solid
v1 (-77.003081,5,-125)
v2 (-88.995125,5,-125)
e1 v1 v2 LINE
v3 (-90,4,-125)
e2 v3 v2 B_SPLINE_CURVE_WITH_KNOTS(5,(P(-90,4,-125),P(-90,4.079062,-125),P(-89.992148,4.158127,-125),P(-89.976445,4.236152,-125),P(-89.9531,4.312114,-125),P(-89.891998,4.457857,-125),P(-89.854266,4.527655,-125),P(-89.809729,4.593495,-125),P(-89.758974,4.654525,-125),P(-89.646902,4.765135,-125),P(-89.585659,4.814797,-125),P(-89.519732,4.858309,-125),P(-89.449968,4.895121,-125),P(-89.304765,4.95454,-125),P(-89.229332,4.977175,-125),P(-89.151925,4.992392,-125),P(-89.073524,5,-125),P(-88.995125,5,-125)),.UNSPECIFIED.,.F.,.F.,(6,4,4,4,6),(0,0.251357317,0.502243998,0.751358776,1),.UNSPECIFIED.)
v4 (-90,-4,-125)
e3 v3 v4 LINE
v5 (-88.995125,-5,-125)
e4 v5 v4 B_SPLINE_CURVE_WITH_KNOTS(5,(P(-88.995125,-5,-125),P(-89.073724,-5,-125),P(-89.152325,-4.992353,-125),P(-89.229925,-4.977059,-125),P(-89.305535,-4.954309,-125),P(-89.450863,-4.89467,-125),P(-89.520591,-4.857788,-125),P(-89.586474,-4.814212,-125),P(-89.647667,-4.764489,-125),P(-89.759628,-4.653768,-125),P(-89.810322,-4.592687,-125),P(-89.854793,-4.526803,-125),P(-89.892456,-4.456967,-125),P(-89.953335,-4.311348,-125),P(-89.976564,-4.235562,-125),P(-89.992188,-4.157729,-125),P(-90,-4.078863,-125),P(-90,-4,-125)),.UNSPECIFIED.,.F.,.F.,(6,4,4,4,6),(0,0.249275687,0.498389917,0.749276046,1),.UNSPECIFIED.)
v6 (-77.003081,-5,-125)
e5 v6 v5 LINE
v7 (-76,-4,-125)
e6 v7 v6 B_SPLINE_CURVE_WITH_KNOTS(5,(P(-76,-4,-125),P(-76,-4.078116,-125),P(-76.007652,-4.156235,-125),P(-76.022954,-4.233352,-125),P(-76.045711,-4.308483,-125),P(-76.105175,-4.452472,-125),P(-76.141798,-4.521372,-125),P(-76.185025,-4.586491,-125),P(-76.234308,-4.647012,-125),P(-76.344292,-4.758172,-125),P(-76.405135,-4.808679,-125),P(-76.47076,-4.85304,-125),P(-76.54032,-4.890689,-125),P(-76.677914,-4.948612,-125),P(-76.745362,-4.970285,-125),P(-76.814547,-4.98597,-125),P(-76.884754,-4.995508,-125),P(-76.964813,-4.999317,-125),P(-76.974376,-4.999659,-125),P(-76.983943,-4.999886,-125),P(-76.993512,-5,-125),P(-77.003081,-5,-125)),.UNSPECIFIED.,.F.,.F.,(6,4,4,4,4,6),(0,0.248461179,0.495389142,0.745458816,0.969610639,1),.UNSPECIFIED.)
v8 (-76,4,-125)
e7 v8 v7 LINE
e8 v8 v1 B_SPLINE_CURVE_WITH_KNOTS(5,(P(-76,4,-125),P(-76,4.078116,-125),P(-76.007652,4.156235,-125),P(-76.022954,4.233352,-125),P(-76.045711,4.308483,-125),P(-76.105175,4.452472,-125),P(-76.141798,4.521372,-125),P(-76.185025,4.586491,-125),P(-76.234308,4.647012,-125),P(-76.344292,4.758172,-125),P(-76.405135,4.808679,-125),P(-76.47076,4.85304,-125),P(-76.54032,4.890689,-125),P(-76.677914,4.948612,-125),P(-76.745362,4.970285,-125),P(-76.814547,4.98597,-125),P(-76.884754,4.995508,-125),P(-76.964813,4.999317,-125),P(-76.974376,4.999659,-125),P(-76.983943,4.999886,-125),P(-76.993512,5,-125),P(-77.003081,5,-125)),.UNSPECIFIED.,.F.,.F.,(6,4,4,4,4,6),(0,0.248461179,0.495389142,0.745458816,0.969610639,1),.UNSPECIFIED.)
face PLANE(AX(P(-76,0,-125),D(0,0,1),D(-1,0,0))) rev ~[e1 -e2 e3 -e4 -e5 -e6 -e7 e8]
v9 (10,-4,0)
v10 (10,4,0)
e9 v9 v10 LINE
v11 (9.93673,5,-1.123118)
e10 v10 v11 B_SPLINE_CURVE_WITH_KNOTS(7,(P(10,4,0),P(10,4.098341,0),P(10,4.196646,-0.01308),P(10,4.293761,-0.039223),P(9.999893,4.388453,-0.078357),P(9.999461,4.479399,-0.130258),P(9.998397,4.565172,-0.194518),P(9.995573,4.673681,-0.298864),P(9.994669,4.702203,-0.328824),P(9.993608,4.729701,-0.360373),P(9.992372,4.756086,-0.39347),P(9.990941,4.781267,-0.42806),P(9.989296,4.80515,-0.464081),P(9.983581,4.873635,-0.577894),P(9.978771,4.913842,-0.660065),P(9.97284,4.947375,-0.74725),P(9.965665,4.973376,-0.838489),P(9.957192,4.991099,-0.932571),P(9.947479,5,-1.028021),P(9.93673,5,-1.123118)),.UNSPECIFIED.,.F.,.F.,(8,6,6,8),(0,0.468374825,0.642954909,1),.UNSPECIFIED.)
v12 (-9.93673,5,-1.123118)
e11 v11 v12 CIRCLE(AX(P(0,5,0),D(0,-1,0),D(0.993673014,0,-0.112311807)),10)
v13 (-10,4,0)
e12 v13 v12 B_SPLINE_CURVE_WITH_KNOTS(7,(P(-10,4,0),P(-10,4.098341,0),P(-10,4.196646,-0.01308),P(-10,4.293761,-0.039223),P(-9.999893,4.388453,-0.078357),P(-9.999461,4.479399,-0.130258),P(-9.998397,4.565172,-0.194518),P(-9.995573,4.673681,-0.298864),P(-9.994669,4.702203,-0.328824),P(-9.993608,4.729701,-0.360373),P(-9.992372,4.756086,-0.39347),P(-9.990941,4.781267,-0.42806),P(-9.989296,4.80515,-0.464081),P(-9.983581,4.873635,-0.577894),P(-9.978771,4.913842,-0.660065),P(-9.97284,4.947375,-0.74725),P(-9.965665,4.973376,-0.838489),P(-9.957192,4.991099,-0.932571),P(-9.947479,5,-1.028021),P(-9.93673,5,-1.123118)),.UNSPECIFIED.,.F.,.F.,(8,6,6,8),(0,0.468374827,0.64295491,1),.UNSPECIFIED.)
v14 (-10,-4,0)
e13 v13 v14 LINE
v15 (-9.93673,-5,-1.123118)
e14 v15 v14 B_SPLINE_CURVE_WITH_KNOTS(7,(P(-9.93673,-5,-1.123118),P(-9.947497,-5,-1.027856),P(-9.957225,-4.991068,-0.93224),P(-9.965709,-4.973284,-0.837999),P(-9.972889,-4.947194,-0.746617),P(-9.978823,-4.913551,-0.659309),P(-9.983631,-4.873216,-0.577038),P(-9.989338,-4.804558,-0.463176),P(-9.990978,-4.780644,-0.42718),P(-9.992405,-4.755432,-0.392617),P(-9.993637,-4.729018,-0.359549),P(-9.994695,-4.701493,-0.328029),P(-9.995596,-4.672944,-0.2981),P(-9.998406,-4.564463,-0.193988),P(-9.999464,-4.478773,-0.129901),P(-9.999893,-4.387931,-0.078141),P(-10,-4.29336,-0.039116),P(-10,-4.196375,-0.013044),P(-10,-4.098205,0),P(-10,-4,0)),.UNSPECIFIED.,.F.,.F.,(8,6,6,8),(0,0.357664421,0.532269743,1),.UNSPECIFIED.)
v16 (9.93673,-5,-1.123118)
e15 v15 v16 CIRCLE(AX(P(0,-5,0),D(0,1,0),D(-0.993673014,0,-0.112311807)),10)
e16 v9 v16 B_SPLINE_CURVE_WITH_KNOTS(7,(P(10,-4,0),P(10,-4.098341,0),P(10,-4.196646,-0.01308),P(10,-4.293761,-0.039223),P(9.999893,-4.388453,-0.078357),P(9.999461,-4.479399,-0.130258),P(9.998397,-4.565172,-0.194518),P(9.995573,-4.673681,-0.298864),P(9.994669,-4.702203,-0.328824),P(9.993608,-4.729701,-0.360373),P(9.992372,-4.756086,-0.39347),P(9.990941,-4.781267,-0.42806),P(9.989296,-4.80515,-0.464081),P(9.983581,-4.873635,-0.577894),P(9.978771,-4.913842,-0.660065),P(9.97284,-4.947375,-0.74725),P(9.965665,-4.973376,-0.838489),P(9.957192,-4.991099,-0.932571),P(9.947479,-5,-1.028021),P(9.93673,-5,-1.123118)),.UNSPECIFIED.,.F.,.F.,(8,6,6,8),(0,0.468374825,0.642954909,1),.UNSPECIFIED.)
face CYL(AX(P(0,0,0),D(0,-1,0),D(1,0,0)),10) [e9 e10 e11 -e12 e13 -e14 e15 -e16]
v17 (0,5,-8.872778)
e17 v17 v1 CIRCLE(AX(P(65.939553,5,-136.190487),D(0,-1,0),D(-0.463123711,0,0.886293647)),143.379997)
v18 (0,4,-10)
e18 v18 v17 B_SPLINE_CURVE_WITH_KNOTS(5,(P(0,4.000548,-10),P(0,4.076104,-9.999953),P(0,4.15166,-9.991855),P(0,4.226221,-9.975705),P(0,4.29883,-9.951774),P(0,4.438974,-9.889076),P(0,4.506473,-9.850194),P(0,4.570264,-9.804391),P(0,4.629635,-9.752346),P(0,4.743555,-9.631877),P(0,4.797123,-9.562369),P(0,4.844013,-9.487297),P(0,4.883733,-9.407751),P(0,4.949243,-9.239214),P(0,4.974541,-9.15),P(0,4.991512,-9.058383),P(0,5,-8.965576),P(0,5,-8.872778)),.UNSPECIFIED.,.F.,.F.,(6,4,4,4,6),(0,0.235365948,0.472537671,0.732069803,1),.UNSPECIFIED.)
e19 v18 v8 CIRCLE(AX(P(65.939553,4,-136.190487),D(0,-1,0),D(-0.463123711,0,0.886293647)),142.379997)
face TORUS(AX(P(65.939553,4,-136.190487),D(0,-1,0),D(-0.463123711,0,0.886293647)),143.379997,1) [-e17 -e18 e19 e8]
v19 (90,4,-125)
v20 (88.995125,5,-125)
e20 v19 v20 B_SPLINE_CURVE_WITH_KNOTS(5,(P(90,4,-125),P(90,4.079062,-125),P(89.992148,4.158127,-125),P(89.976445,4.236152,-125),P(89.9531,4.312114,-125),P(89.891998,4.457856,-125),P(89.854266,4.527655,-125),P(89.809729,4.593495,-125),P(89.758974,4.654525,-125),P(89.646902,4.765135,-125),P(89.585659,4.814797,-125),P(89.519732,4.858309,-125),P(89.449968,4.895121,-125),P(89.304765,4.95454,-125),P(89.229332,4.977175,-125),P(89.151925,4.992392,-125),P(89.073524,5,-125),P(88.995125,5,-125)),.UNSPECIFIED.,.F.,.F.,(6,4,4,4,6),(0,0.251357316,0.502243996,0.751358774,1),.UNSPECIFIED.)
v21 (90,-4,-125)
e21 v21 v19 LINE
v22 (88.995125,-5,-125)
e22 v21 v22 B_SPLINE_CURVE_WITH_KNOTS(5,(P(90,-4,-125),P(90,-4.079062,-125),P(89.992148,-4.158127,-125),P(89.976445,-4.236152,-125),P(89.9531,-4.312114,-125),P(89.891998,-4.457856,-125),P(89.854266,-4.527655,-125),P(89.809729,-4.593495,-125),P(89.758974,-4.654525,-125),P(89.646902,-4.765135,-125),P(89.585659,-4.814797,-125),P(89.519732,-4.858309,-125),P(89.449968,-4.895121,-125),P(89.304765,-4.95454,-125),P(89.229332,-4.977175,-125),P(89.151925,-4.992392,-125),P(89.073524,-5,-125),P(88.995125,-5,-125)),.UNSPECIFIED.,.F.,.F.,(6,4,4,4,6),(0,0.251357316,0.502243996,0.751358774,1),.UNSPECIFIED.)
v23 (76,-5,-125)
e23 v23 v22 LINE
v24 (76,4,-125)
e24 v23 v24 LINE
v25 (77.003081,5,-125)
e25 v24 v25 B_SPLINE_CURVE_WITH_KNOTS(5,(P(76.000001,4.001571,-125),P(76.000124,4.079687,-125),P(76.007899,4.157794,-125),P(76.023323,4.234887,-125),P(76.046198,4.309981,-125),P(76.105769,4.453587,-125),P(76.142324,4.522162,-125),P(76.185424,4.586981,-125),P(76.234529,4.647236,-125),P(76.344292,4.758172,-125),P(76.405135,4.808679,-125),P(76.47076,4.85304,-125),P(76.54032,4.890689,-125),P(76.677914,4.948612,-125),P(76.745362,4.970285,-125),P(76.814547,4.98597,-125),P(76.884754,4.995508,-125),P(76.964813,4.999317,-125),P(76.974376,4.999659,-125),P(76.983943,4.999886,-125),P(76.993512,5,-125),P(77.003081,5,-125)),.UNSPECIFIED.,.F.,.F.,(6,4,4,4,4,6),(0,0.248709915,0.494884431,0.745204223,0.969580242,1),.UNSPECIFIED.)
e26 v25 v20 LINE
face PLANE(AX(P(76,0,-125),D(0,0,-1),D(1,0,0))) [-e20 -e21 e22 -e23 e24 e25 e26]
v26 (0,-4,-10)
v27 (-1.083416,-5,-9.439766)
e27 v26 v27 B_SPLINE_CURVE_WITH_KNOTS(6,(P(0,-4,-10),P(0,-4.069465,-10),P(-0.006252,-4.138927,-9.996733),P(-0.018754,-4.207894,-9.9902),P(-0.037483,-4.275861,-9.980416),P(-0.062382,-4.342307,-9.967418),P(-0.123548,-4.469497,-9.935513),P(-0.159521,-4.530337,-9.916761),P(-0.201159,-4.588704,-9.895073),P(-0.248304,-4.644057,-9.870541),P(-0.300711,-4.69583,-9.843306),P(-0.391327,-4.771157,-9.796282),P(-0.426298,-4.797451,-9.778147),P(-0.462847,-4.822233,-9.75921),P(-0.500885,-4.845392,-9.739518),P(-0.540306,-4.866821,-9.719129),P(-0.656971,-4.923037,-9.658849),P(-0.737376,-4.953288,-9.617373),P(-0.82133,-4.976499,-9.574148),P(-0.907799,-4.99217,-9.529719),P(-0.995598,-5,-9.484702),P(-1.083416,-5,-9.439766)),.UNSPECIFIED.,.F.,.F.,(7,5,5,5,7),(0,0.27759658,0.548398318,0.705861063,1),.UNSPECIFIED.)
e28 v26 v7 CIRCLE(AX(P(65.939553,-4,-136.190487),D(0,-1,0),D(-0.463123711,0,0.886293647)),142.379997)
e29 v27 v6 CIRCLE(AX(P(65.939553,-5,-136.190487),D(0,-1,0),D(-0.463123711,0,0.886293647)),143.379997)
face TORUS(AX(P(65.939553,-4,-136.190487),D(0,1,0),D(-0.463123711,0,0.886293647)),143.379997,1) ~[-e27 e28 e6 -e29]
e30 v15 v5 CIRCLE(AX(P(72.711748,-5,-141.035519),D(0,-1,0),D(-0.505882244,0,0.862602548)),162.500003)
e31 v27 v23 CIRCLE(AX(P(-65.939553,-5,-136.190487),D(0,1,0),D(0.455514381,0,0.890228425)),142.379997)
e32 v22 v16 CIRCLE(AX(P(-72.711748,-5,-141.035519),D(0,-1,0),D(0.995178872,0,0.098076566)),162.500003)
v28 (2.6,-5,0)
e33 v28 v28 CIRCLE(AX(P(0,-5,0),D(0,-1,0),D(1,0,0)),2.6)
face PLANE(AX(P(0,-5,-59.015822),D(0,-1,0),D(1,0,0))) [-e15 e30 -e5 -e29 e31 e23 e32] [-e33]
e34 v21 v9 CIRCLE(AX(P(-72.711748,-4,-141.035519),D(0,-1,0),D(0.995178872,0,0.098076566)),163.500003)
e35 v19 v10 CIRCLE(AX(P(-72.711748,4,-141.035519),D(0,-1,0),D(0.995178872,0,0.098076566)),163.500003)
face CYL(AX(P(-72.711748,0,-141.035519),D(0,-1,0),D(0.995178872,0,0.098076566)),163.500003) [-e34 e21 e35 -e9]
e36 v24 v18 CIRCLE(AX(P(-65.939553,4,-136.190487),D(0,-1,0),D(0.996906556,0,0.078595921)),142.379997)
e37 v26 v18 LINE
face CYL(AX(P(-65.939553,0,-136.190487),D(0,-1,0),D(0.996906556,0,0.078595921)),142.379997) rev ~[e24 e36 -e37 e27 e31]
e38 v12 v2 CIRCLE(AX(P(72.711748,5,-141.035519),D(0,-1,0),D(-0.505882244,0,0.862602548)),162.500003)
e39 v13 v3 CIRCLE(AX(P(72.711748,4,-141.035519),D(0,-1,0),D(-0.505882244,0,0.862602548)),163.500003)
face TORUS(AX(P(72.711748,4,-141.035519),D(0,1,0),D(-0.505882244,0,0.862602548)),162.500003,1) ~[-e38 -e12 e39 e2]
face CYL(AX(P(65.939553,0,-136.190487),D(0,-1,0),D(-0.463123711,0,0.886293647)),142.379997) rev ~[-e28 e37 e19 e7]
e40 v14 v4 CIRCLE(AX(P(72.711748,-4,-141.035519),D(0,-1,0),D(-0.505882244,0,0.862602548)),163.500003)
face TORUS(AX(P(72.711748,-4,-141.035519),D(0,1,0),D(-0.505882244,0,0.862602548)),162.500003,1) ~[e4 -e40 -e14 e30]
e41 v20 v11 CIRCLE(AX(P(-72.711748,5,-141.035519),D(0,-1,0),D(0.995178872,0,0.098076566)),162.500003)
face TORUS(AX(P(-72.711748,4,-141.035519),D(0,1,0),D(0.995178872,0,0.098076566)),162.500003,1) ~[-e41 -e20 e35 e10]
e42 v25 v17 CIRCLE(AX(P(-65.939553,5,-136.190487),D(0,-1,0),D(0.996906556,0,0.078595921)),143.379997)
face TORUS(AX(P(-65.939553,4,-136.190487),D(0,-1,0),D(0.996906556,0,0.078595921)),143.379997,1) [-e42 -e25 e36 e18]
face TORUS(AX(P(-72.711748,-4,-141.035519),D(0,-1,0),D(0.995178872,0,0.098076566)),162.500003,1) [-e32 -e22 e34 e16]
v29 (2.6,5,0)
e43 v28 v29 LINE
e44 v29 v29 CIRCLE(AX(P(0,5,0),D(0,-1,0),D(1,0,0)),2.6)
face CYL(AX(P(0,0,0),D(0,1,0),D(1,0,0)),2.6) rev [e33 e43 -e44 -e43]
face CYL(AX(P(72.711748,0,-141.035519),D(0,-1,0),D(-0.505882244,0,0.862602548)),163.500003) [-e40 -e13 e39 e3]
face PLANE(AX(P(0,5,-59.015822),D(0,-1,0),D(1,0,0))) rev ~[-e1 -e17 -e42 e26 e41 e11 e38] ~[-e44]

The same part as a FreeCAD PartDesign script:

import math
import FreeCAD as App
import Part
import Sketcher
from FreeCAD import Vector


def edges_at(feature, points):
    """Names of the edges that pass closest to the given points."""
    edges = feature.Shape.Edges
    near = lambda p: min(range(len(edges)), key=lambda i: edges[i].distToShape(Part.Vertex(*p))[0])
    return sorted({f"Edge{near(p) + 1}" for p in points})

doc = App.newDocument("Part")
params = doc.addObject("Spreadsheet::Sheet", "Params")
for row, (alias, value) in enumerate([
    ("sketch1_radius", "10 mm"),
    ("sketch1_diameter", "5.2 mm"),
    ("sketch1_width", "14 mm"),
    ("pad1_length", "10 mm"),
    ("fillet_radius", "1 mm"),
], start=1):
    params.set(f"A{row}", alias)
    params.set(f"B{row}", "=" + value)
    params.setAlias(f"B{row}", alias)

body = doc.addObject("PartDesign::Body", "Body")

sketch1 = body.newObject("Sketcher::SketchObject", "Sketch")
sketch1.AttachmentSupport = (doc.getObject("XZ_Plane"), [""])
sketch1.MapMode = "FlatFace"
sketch1.addGeometry(Part.ArcOfCircle(Part.Circle(Vector(0, 0, 0), Vector(0, 0, 1), 10), math.radians(0), math.radians(180)), False)
sketch1.addGeometry(Part.ArcOfCircle(Part.Circle(Vector(72.7, -141, 0), Vector(0, 0, 1), 163.5), math.radians(120), math.radians(174)), False)
sketch1.addGeometry(Part.LineSegment(Vector(-90, -125, 0), Vector(-76, -125, 0)), False)
sketch1.addGeometry(Part.ArcOfCircle(Part.Circle(Vector(65.9, -136.2, 0), Vector(0, 0, 1), 142.4), math.radians(118), math.radians(175)), False)
sketch1.addGeometry(Part.ArcOfCircle(Part.Circle(Vector(-65.9, -136.2, 0), Vector(0, 0, 1), 142.4), math.radians(5), math.radians(62)), False)
sketch1.addGeometry(Part.LineSegment(Vector(76, -125, 0), Vector(90, -125, 0)), False)
sketch1.addGeometry(Part.ArcOfCircle(Part.Circle(Vector(-72.7, -141, 0), Vector(0, 0, 1), 163.5), math.radians(6), math.radians(60)), False)
sketch1.addGeometry(Part.Circle(Vector(0, 0, 0), Vector(0, 0, 1), 2.6), False)
sketch1.addConstraint(Sketcher.Constraint("Coincident", 0, 2, 1, 1))
sketch1.addConstraint(Sketcher.Constraint("Coincident", 1, 2, 2, 1))
sketch1.addConstraint(Sketcher.Constraint("Coincident", 2, 2, 3, 2))
sketch1.addConstraint(Sketcher.Constraint("Coincident", 3, 1, 4, 2))
sketch1.addConstraint(Sketcher.Constraint("Coincident", 4, 1, 5, 1))
sketch1.addConstraint(Sketcher.Constraint("Coincident", 5, 2, 6, 1))
sketch1.addConstraint(Sketcher.Constraint("Coincident", 6, 2, 0, 1))
sketch1.addConstraint(Sketcher.Constraint("Horizontal", 2))
sketch1.addConstraint(Sketcher.Constraint("Horizontal", 5))
sketch1.addConstraint(Sketcher.Constraint("Coincident", 0, 3, -1, 1))
sketch1.addConstraint(Sketcher.Constraint("Coincident", 7, 3, -1, 1))
sketch1.addConstraint(Sketcher.Constraint("Equal", 3, 4))
sketch1.addConstraint(Sketcher.Constraint("Equal", 1, 6))
sketch1.addConstraint(Sketcher.Constraint("Symmetric", 3, 3, 4, 3, -2))
sketch1.addConstraint(Sketcher.Constraint("Symmetric", 1, 3, 6, 3, -2))
sketch1.addConstraint(Sketcher.Constraint("PointOnObject", 0, 2, -1))
sketch1.addConstraint(Sketcher.Constraint("Horizontal", 2, 2, 4, 1))
sketch1.addConstraint(Sketcher.Constraint("Radius", 0, 10.0))
sketch1.addConstraint(Sketcher.Constraint("Diameter", 7, 5.2))
sketch1.addConstraint(Sketcher.Constraint("DistanceX", 2, 1, 2, 2, 14.0))
sketch1.addConstraint(Sketcher.Constraint("DistanceX", 1, 2, -1, 1, 90.0))
sketch1.addConstraint(Sketcher.Constraint("DistanceY", 1, 2, -1, 1, 125.0))
sketch1.addConstraint(Sketcher.Constraint("DistanceY", 3, 1, -1, 1, 10.0))
sketch1.addConstraint(Sketcher.Constraint("Radius", 1, 163.500003))
sketch1.addConstraint(Sketcher.Constraint("Radius", 3, 142.379997))
sketch1.setExpression("Constraints[17]", "Params.sketch1_radius")
sketch1.setExpression("Constraints[18]", "Params.sketch1_diameter")
sketch1.setExpression("Constraints[19]", "Params.sketch1_width")
pad1 = body.newObject("PartDesign::Pad", "Pad")
pad1.Profile = sketch1
pad1.setExpression("Length", "Params.pad1_length")
pad1.Midplane = True
doc.recompute()

fillet = body.newObject("PartDesign::Fillet", "Fillet")
fillet.Base = (pad1, edges_at(pad1, [
    (65, 5, -52.9),
    (65, -5, -52.9),
    (-65, 5, -52.9),
    (-65, -5, -52.9),
    (-52.845, 5, -57.69),
    (-52.845, -5, -57.69),
    (52.845, 5, -57.69),
]))
fillet.setExpression("Radius", "Params.fillet_radius")

doc.recompute()
